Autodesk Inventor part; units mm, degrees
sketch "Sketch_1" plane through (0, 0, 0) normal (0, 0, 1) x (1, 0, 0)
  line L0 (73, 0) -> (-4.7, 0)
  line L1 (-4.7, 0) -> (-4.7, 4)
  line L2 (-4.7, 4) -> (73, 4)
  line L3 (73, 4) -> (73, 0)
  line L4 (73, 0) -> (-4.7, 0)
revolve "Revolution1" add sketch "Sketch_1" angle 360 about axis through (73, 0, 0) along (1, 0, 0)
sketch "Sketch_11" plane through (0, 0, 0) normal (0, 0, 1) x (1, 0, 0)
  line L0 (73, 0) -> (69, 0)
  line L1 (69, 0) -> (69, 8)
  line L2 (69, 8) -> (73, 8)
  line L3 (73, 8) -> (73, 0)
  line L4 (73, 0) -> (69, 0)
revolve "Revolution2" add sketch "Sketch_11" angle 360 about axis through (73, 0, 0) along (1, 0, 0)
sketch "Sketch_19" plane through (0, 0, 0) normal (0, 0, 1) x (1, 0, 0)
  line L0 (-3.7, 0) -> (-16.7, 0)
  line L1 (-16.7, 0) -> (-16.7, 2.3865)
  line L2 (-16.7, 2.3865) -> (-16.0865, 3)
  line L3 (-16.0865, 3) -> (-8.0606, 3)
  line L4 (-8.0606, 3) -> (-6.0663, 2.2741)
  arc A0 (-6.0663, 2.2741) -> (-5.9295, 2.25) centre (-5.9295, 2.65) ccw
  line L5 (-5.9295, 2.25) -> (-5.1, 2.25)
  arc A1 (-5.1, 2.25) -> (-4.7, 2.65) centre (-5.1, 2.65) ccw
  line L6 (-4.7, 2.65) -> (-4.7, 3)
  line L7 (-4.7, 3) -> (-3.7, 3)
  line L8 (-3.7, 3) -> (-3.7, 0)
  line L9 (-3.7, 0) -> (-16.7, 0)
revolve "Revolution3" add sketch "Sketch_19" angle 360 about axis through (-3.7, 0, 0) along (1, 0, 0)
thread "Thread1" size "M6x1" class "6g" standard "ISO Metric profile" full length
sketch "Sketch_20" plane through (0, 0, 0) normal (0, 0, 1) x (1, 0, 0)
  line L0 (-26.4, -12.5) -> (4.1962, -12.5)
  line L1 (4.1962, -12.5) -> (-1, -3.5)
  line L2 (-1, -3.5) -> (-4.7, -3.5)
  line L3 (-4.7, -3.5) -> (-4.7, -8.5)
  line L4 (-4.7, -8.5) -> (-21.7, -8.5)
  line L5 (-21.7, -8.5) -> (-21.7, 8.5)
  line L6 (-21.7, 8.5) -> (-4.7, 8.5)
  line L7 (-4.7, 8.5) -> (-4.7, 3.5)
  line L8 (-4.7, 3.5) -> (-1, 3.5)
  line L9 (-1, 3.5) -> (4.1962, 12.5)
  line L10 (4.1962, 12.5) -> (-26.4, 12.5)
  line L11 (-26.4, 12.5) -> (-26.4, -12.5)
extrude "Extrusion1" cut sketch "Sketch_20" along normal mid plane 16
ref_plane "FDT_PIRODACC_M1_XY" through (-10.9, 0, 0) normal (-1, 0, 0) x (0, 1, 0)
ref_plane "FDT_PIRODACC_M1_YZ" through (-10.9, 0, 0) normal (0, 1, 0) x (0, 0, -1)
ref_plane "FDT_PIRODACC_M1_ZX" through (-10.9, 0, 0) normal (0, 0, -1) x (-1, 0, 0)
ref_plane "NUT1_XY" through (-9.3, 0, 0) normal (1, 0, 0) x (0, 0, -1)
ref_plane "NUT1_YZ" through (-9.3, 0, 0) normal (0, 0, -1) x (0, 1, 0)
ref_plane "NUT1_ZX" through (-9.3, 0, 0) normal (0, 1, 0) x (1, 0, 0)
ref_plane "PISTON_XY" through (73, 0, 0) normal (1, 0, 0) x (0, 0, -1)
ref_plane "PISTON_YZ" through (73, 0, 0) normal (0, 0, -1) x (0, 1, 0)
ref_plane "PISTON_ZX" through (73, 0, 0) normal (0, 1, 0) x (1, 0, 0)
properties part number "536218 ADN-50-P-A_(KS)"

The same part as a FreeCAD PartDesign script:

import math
import FreeCAD as App
import Part
import Sketcher

V = App.Vector
Q = App.Units.Quantity

doc = App.newDocument("Part")
body = doc.addObject("PartDesign::Body", "Body")

sketch1 = body.newObject("Sketcher::SketchObject", "Sketch")
sketch1.AttachmentSupport = (doc.getObject("XY_Plane"), [""])
sketch1.MapMode = "FlatFace"
sketch1.addGeometry(Part.LineSegment(V(-4.7, 0, 0), V(73, 0, 0)), False)
sketch1.addGeometry(Part.LineSegment(V(73, 0, 0), V(73, 4, 0)), False)
sketch1.addGeometry(Part.LineSegment(V(73, 4, 0), V(-4.7, 4, 0)), False)
sketch1.addGeometry(Part.LineSegment(V(-4.7, 4, 0), V(-4.7, 0, 0)), False)
sketch1.addConstraint(Sketcher.Constraint("Coincident", 0, 2, 1, 1))
sketch1.addConstraint(Sketcher.Constraint("Coincident", 1, 2, 2, 1))
sketch1.addConstraint(Sketcher.Constraint("Coincident", 2, 2, 3, 1))
sketch1.addConstraint(Sketcher.Constraint("Coincident", 3, 2, 0, 1))
sketch1.addConstraint(Sketcher.Constraint("Horizontal", 0))
sketch1.addConstraint(Sketcher.Constraint("Vertical", 1))
sketch1.addConstraint(Sketcher.Constraint("Horizontal", 2))
sketch1.addConstraint(Sketcher.Constraint("Vertical", 3))
sketch1.addConstraint(Sketcher.Constraint("PointOnObject", 0, 2, -1))
sketch1.addConstraint(Sketcher.Constraint("DistanceY", 1, 1, 1, 2, 4.0))
sketch1.addConstraint(Sketcher.Constraint("DistanceX", 0, 1, 0, 2, 77.7))
sketch1.addConstraint(Sketcher.Constraint("DistanceX", -1, 1, 0, 2, 73.0))
revolution = body.newObject("PartDesign::Revolution", "Revolution")
revolution.Profile = sketch1
revolution.ReferenceAxis = (sketch1, ["H_Axis"])
revolution.Angle = 360

sketch2 = body.newObject("Sketcher::SketchObject", "Sketch001")
sketch2.AttachmentSupport = (doc.getObject("XY_Plane"), [""])
sketch2.MapMode = "FlatFace"
sketch2.addGeometry(Part.LineSegment(V(69, 0, 0), V(73, 0, 0)), False)
sketch2.addGeometry(Part.LineSegment(V(73, 0, 0), V(73, 8, 0)), False)
sketch2.addGeometry(Part.LineSegment(V(73, 8, 0), V(69, 8, 0)), False)
sketch2.addGeometry(Part.LineSegment(V(69, 8, 0), V(69, 0, 0)), False)
sketch2.addConstraint(Sketcher.Constraint("Coincident", 0, 2, 1, 1))
sketch2.addConstraint(Sketcher.Constraint("Coincident", 1, 2, 2, 1))
sketch2.addConstraint(Sketcher.Constraint("Coincident", 2, 2, 3, 1))
sketch2.addConstraint(Sketcher.Constraint("Coincident", 3, 2, 0, 1))
sketch2.addConstraint(Sketcher.Constraint("Horizontal", 0))
sketch2.addConstraint(Sketcher.Constraint("Vertical", 1))
sketch2.addConstraint(Sketcher.Constraint("Horizontal", 2))
sketch2.addConstraint(Sketcher.Constraint("Vertical", 3))
sketch2.addConstraint(Sketcher.Constraint("PointOnObject", 0, 2, -1))
sketch2.addConstraint(Sketcher.Constraint("DistanceX", 0, 1, 0, 2, 4.0))
sketch2.addConstraint(Sketcher.Constraint("DistanceY", 1, 1, 1, 2, 8.0))
sketch2.addConstraint(Sketcher.Constraint("DistanceX", -1, 1, 0, 2, 73.0))
revolution2 = body.newObject("PartDesign::Revolution", "Revolution001")
revolution2.Profile = sketch2
revolution2.ReferenceAxis = (sketch2, ["H_Axis"])
revolution2.Angle = 360

sketch3 = body.newObject("Sketcher::SketchObject", "Sketch002")
sketch3.AttachmentSupport = (doc.getObject("XY_Plane"), [""])
sketch3.MapMode = "FlatFace"
sketch3.addGeometry(Part.LineSegment(V(-16.7, 0, 0), V(-3.7, 0, 0)), False)
sketch3.addGeometry(Part.LineSegment(V(-3.7, 0, 0), V(-3.7, 3, 0)), False)
sketch3.addGeometry(Part.LineSegment(V(-3.7, 3, 0), V(-4.7, 3, 0)), False)
sketch3.addGeometry(Part.LineSegment(V(-4.7, 3, 0), V(-4.7, 2.65, 0)), False)
sketch3.addGeometry(Part.ArcOfCircle(Part.Circle(V(-5.1, 2.65, 0), V(0, 0, 1), 0.4), math.radians(-90), math.radians(0)), False)
sketch3.addGeometry(Part.LineSegment(V(-5.1, 2.25, 0), V(-5.9295, 2.25, 0)), False)
sketch3.addGeometry(Part.ArcOfCircle(Part.Circle(V(-5.9295, 2.65, 0), V(0, 0, 1), 0.400019), math.radians(-109.997791), math.radians(-90)), False)
sketch3.addGeometry(Part.LineSegment(V(-6.0663, 2.2741, 0), V(-8.0606, 3, 0)), False)
sketch3.addGeometry(Part.LineSegment(V(-8.0606, 3, 0), V(-16.0865, 3, 0)), False)
sketch3.addGeometry(Part.LineSegment(V(-16.0865, 3, 0), V(-16.7, 2.3865, 0)), False)
sketch3.addGeometry(Part.LineSegment(V(-16.7, 2.3865, 0), V(-16.7, 0, 0)), False)
sketch3.addConstraint(Sketcher.Constraint("Coincident", 0, 2, 1, 1))
sketch3.addConstraint(Sketcher.Constraint("Coincident", 1, 2, 2, 1))
sketch3.addConstraint(Sketcher.Constraint("Coincident", 2, 2, 3, 1))
sketch3.addConstraint(Sketcher.Constraint("Tangent", 3, 2, 4, 2))
sketch3.addConstraint(Sketcher.Constraint("Tangent", 4, 1, 5, 1))
sketch3.addConstraint(Sketcher.Constraint("Tangent", 5, 2, 6, 2))
sketch3.addConstraint(Sketcher.Constraint("Tangent", 6, 1, 7, 1))
sketch3.addConstraint(Sketcher.Constraint("Coincident", 7, 2, 8, 1))
sketch3.addConstraint(Sketcher.Constraint("Coincident", 8, 2, 9, 1))
sketch3.addConstraint(Sketcher.Constraint("Coincident", 9, 2, 10, 1))
sketch3.addConstraint(Sketcher.Constraint("Coincident", 10, 2, 0, 1))
sketch3.addConstraint(Sketcher.Constraint("Horizontal", 0))
sketch3.addConstraint(Sketcher.Constraint("Vertical", 1))
sketch3.addConstraint(Sketcher.Constraint("Horizontal", 2))
sketch3.addConstraint(Sketcher.Constraint("Vertical", 3))
sketch3.addConstraint(Sketcher.Constraint("Horizontal", 5))
sketch3.addConstraint(Sketcher.Constraint("Horizontal", 8))
sketch3.addConstraint(Sketcher.Constraint("Vertical", 10))
sketch3.addConstraint(Sketcher.Constraint("Equal", 4, 6))
sketch3.addConstraint(Sketcher.Constraint("PointOnObject", 0, 2, -1))
sketch3.addConstraint(Sketcher.Constraint("Horizontal", 2, 2, 7, 2))
sketch3.addConstraint(Sketcher.Constraint("Radius", 4, 0.4))
sketch3.addConstraint(Sketcher.Constraint("DistanceX", 0, 1, 0, 2, 13.0))
sketch3.addConstraint(Sketcher.Constraint("DistanceX", 2, 2, 2, 1, 1.0))
sketch3.addConstraint(Sketcher.Constraint("DistanceY", 1, 1, 1, 2, 3.0))
sketch3.addConstraint(Sketcher.Constraint("Angle", 7, Q("159.9991 deg")))
sketch3.addConstraint(Sketcher.Constraint("Angle", 9, Q("-135 deg")))
sketch3.addConstraint(Sketcher.Constraint("DistanceY", 3, 2, 3, 1, 0.35))
sketch3.addConstraint(Sketcher.Constraint("DistanceX", 4, 3, -1, 1, 5.1))
sketch3.addConstraint(Sketcher.Constraint("DistanceX", 8, 2, 8, 1, 8.026))
sketch3.addConstraint(Sketcher.Constraint("DistanceX", 5, 2, 5, 1, 0.8295))
revolution3 = body.newObject("PartDesign::Revolution", "Revolution002")
revolution3.Profile = sketch3
revolution3.ReferenceAxis = (sketch3, ["H_Axis"])
revolution3.Angle = 360

sketch4 = body.newObject("Sketcher::SketchObject", "Sketch003")
sketch4.AttachmentSupport = (doc.getObject("XY_Plane"), [""])
sketch4.MapMode = "FlatFace"
sketch4.addGeometry(Part.LineSegment(V(-26.4, 12.5, 0), V(-26.4, -12.5, 0)), False)
sketch4.addGeometry(Part.LineSegment(V(-26.4, -12.5, 0), V(4.1962, -12.5, 0)), False)
sketch4.addGeometry(Part.LineSegment(V(4.1962, -12.5, 0), V(-1, -3.5, 0)), False)
sketch4.addGeometry(Part.LineSegment(V(-1, -3.5, 0), V(-4.7, -3.5, 0)), False)
sketch4.addGeometry(Part.LineSegment(V(-4.7, -3.5, 0), V(-4.7, -8.5, 0)), False)
sketch4.addGeometry(Part.LineSegment(V(-4.7, -8.5, 0), V(-21.7, -8.5, 0)), False)
sketch4.addGeometry(Part.LineSegment(V(-21.7, -8.5, 0), V(-21.7, 8.5, 0)), False)
sketch4.addGeometry(Part.LineSegment(V(-21.7, 8.5, 0), V(-4.7, 8.5, 0)), False)
sketch4.addGeometry(Part.LineSegment(V(-4.7, 8.5, 0), V(-4.7, 3.5, 0)), False)
sketch4.addGeometry(Part.LineSegment(V(-4.7, 3.5, 0), V(-1, 3.5, 0)), False)
sketch4.addGeometry(Part.LineSegment(V(-1, 3.5, 0), V(4.1962, 12.5, 0)), False)
sketch4.addGeometry(Part.LineSegment(V(4.1962, 12.5, 0), V(-26.4, 12.5, 0)), False)
sketch4.addConstraint(Sketcher.Constraint("Coincident", 0, 2, 1, 1))
sketch4.addConstraint(Sketcher.Constraint("Coincident", 1, 2, 2, 1))
sketch4.addConstraint(Sketcher.Constraint("Coincident", 2, 2, 3, 1))
sketch4.addConstraint(Sketcher.Constraint("Coincident", 3, 2, 4, 1))
sketch4.addConstraint(Sketcher.Constraint("Coincident", 4, 2, 5, 1))
sketch4.addConstraint(Sketcher.Constraint("Coincident", 5, 2, 6, 1))
sketch4.addConstraint(Sketcher.Constraint("Coincident", 6, 2, 7, 1))
sketch4.addConstraint(Sketcher.Constraint("Coincident", 7, 2, 8, 1))
sketch4.addConstraint(Sketcher.Constraint("Coincident", 8, 2, 9, 1))
sketch4.addConstraint(Sketcher.Constraint("Coincident", 9, 2, 10, 1))
sketch4.addConstraint(Sketcher.Constraint("Coincident", 10, 2, 11, 1))
sketch4.addConstraint(Sketcher.Constraint("Coincident", 11, 2, 0, 1))
sketch4.addConstraint(Sketcher.Constraint("Vertical", 0))
sketch4.addConstraint(Sketcher.Constraint("Horizontal", 1))
sketch4.addConstraint(Sketcher.Constraint("Horizontal", 3))
sketch4.addConstraint(Sketcher.Constraint("Vertical", 4))
sketch4.addConstraint(Sketcher.Constraint("Horizontal", 5))
sketch4.addConstraint(Sketcher.Constraint("Vertical", 6))
sketch4.addConstraint(Sketcher.Constraint("Horizontal", 7))
sketch4.addConstraint(Sketcher.Constraint("Vertical", 8))
sketch4.addConstraint(Sketcher.Constraint("Horizontal", 9))
sketch4.addConstraint(Sketcher.Constraint("Horizontal", 11))
sketch4.addConstraint(Sketcher.Constraint("Symmetric", 4, 2, 7, 2, -1))
sketch4.addConstraint(Sketcher.Constraint("Symmetric", 2, 2, 9, 2, -1))
sketch4.addConstraint(Sketcher.Constraint("Symmetric", 1, 2, 10, 2, -1))
sketch4.addConstraint(Sketcher.Constraint("Equal", 7, 6))
sketch4.addConstraint(Sketcher.Constraint("DistanceX", 5, 2, 5, 1, 17.0))
sketch4.addConstraint(Sketcher.Constraint("DistanceY", 0, 2, 0, 1, 25.0))
sketch4.addConstraint(Sketcher.Constraint("DistanceY", 4, 2, 4, 1, 5.0))
sketch4.addConstraint(Sketcher.Constraint("Angle", 2, Q("120.0002 deg")))
sketch4.addConstraint(Sketcher.Constraint("DistanceX", 3, 2, 3, 1, 3.7))
sketch4.addConstraint(Sketcher.Constraint("DistanceX", 2, 2, -1, 1, 1.0))
sketch4.addConstraint(Sketcher.Constraint("DistanceX", 0, 2, -1, 1, 26.4))
pocket1 = body.newObject("PartDesign::Pocket", "Pocket")
pocket1.Profile = sketch4
pocket1.Length = 16
pocket1.Midplane = True

doc.recompute()
